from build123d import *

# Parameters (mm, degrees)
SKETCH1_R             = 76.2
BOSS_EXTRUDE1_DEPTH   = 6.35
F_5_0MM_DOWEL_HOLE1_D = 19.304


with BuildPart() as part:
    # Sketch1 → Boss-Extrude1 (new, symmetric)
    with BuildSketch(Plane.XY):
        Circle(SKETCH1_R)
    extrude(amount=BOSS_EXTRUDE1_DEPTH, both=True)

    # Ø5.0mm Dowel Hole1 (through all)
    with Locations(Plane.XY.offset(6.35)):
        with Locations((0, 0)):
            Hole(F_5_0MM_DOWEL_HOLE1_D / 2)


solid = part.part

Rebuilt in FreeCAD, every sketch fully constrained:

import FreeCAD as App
import Part
import Sketcher
from FreeCAD import Vector
Q = App.Units.Quantity

doc = App.newDocument("Part")
body = doc.addObject("PartDesign::Body", "Body")

sketch1 = body.newObject("Sketcher::SketchObject", "Sketch")
sketch1.AttachmentSupport = (doc.getObject("XY_Plane"), [""])
sketch1.MapMode = "FlatFace"
sketch1.addGeometry(Part.Circle(Vector(0, 0, 0), Vector(0, 0, 1), 76.2), False)
sketch1.addConstraint([
    Sketcher.Constraint("Coincident", 0, 3, -1, 1),
    Sketcher.Constraint("Diameter", 0, Q("6 in")),
])
pad1 = body.newObject("PartDesign::Pad", "Pad")
pad1.Profile = sketch1
pad1.Length = Q("0.5 in")
pad1.Midplane = True

sketch2 = body.newObject("Sketcher::SketchObject", "Sketch001")
sketch2.AttachmentSupport = (doc.getObject("XY_Plane"), [""])
sketch2.MapMode = "FlatFace"
sketch2.AttachmentOffset = App.Placement(Vector(0, 0, 0.25 * 25.4), App.Rotation())
sketch2.addGeometry(Part.Circle(Vector(0, 0, 0), Vector(0, 0, 1), 9.652), False)
sketch2.addConstraint([
    Sketcher.Constraint("Coincident", 0, 3, -1, 1),
    Sketcher.Constraint("Diameter", 0, Q("0.76 in")),
])
doc.recompute()
hole = body.newObject("PartDesign::Hole", "Hole")
hole.Profile = sketch2
hole.ThreadType = "None"
hole.Diameter = Q("0.76 in")
hole.DepthType = "ThroughAll"

doc.recompute()
